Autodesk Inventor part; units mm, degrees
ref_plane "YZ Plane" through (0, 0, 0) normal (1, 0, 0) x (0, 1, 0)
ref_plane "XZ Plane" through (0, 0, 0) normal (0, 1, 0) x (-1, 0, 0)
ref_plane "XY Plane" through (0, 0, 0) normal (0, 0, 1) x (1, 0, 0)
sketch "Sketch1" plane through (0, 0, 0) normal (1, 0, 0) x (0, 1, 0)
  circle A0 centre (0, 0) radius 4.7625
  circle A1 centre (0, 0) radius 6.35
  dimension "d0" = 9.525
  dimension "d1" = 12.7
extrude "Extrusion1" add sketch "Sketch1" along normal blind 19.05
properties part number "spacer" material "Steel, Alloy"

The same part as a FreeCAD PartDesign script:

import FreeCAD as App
import Part
import Sketcher
Q = App.Units.Quantity

doc = App.newDocument("Part")
params = doc.addObject("Spreadsheet::Sheet", "Params")
for row, (alias, value) in enumerate([
    ("sketch1_diameter", "0.5 in"),
    ("sketch1_diameter2", "0.375 in"),
    ("pad1_length", "0.75 in"),
], start=1):
    params.set(f"A{row}", alias)
    params.set(f"B{row}", "=" + value)
    params.setAlias(f"B{row}", alias)

body = doc.addObject("PartDesign::Body", "Body")

# Sketch on YZ plane
sketch1 = body.newObject("Sketcher::SketchObject", "Sketch")
sketch1.AttachmentSupport = (doc.getObject("YZ_Plane"), [""])
sketch1.MapMode = "FlatFace"
sketch1.addGeometry(Part.Circle(App.Vector(0, 0, 0), App.Vector(0, 0, 1), 6.3), False)
sketch1.addGeometry(Part.Circle(App.Vector(0, 0, 0), App.Vector(0, 0, 1), 4.8), False)
sketch1.addConstraint(Sketcher.Constraint("Coincident", 0, 3, -1, 1))
sketch1.addConstraint(Sketcher.Constraint("Coincident", 1, 3, -1, 1))
sketch1.addConstraint(Sketcher.Constraint("Diameter", 0, Q("0.5 in")))
sketch1.addConstraint(Sketcher.Constraint("Diameter", 1, Q("0.375 in")))
sketch1.setExpression("Constraints[2]", "Params.sketch1_diameter")
sketch1.setExpression("Constraints[3]", "Params.sketch1_diameter2")
pad1 = body.newObject("PartDesign::Pad", "Pad")
pad1.Profile = sketch1
pad1.setExpression("Length", "Params.pad1_length")

doc.recompute()
